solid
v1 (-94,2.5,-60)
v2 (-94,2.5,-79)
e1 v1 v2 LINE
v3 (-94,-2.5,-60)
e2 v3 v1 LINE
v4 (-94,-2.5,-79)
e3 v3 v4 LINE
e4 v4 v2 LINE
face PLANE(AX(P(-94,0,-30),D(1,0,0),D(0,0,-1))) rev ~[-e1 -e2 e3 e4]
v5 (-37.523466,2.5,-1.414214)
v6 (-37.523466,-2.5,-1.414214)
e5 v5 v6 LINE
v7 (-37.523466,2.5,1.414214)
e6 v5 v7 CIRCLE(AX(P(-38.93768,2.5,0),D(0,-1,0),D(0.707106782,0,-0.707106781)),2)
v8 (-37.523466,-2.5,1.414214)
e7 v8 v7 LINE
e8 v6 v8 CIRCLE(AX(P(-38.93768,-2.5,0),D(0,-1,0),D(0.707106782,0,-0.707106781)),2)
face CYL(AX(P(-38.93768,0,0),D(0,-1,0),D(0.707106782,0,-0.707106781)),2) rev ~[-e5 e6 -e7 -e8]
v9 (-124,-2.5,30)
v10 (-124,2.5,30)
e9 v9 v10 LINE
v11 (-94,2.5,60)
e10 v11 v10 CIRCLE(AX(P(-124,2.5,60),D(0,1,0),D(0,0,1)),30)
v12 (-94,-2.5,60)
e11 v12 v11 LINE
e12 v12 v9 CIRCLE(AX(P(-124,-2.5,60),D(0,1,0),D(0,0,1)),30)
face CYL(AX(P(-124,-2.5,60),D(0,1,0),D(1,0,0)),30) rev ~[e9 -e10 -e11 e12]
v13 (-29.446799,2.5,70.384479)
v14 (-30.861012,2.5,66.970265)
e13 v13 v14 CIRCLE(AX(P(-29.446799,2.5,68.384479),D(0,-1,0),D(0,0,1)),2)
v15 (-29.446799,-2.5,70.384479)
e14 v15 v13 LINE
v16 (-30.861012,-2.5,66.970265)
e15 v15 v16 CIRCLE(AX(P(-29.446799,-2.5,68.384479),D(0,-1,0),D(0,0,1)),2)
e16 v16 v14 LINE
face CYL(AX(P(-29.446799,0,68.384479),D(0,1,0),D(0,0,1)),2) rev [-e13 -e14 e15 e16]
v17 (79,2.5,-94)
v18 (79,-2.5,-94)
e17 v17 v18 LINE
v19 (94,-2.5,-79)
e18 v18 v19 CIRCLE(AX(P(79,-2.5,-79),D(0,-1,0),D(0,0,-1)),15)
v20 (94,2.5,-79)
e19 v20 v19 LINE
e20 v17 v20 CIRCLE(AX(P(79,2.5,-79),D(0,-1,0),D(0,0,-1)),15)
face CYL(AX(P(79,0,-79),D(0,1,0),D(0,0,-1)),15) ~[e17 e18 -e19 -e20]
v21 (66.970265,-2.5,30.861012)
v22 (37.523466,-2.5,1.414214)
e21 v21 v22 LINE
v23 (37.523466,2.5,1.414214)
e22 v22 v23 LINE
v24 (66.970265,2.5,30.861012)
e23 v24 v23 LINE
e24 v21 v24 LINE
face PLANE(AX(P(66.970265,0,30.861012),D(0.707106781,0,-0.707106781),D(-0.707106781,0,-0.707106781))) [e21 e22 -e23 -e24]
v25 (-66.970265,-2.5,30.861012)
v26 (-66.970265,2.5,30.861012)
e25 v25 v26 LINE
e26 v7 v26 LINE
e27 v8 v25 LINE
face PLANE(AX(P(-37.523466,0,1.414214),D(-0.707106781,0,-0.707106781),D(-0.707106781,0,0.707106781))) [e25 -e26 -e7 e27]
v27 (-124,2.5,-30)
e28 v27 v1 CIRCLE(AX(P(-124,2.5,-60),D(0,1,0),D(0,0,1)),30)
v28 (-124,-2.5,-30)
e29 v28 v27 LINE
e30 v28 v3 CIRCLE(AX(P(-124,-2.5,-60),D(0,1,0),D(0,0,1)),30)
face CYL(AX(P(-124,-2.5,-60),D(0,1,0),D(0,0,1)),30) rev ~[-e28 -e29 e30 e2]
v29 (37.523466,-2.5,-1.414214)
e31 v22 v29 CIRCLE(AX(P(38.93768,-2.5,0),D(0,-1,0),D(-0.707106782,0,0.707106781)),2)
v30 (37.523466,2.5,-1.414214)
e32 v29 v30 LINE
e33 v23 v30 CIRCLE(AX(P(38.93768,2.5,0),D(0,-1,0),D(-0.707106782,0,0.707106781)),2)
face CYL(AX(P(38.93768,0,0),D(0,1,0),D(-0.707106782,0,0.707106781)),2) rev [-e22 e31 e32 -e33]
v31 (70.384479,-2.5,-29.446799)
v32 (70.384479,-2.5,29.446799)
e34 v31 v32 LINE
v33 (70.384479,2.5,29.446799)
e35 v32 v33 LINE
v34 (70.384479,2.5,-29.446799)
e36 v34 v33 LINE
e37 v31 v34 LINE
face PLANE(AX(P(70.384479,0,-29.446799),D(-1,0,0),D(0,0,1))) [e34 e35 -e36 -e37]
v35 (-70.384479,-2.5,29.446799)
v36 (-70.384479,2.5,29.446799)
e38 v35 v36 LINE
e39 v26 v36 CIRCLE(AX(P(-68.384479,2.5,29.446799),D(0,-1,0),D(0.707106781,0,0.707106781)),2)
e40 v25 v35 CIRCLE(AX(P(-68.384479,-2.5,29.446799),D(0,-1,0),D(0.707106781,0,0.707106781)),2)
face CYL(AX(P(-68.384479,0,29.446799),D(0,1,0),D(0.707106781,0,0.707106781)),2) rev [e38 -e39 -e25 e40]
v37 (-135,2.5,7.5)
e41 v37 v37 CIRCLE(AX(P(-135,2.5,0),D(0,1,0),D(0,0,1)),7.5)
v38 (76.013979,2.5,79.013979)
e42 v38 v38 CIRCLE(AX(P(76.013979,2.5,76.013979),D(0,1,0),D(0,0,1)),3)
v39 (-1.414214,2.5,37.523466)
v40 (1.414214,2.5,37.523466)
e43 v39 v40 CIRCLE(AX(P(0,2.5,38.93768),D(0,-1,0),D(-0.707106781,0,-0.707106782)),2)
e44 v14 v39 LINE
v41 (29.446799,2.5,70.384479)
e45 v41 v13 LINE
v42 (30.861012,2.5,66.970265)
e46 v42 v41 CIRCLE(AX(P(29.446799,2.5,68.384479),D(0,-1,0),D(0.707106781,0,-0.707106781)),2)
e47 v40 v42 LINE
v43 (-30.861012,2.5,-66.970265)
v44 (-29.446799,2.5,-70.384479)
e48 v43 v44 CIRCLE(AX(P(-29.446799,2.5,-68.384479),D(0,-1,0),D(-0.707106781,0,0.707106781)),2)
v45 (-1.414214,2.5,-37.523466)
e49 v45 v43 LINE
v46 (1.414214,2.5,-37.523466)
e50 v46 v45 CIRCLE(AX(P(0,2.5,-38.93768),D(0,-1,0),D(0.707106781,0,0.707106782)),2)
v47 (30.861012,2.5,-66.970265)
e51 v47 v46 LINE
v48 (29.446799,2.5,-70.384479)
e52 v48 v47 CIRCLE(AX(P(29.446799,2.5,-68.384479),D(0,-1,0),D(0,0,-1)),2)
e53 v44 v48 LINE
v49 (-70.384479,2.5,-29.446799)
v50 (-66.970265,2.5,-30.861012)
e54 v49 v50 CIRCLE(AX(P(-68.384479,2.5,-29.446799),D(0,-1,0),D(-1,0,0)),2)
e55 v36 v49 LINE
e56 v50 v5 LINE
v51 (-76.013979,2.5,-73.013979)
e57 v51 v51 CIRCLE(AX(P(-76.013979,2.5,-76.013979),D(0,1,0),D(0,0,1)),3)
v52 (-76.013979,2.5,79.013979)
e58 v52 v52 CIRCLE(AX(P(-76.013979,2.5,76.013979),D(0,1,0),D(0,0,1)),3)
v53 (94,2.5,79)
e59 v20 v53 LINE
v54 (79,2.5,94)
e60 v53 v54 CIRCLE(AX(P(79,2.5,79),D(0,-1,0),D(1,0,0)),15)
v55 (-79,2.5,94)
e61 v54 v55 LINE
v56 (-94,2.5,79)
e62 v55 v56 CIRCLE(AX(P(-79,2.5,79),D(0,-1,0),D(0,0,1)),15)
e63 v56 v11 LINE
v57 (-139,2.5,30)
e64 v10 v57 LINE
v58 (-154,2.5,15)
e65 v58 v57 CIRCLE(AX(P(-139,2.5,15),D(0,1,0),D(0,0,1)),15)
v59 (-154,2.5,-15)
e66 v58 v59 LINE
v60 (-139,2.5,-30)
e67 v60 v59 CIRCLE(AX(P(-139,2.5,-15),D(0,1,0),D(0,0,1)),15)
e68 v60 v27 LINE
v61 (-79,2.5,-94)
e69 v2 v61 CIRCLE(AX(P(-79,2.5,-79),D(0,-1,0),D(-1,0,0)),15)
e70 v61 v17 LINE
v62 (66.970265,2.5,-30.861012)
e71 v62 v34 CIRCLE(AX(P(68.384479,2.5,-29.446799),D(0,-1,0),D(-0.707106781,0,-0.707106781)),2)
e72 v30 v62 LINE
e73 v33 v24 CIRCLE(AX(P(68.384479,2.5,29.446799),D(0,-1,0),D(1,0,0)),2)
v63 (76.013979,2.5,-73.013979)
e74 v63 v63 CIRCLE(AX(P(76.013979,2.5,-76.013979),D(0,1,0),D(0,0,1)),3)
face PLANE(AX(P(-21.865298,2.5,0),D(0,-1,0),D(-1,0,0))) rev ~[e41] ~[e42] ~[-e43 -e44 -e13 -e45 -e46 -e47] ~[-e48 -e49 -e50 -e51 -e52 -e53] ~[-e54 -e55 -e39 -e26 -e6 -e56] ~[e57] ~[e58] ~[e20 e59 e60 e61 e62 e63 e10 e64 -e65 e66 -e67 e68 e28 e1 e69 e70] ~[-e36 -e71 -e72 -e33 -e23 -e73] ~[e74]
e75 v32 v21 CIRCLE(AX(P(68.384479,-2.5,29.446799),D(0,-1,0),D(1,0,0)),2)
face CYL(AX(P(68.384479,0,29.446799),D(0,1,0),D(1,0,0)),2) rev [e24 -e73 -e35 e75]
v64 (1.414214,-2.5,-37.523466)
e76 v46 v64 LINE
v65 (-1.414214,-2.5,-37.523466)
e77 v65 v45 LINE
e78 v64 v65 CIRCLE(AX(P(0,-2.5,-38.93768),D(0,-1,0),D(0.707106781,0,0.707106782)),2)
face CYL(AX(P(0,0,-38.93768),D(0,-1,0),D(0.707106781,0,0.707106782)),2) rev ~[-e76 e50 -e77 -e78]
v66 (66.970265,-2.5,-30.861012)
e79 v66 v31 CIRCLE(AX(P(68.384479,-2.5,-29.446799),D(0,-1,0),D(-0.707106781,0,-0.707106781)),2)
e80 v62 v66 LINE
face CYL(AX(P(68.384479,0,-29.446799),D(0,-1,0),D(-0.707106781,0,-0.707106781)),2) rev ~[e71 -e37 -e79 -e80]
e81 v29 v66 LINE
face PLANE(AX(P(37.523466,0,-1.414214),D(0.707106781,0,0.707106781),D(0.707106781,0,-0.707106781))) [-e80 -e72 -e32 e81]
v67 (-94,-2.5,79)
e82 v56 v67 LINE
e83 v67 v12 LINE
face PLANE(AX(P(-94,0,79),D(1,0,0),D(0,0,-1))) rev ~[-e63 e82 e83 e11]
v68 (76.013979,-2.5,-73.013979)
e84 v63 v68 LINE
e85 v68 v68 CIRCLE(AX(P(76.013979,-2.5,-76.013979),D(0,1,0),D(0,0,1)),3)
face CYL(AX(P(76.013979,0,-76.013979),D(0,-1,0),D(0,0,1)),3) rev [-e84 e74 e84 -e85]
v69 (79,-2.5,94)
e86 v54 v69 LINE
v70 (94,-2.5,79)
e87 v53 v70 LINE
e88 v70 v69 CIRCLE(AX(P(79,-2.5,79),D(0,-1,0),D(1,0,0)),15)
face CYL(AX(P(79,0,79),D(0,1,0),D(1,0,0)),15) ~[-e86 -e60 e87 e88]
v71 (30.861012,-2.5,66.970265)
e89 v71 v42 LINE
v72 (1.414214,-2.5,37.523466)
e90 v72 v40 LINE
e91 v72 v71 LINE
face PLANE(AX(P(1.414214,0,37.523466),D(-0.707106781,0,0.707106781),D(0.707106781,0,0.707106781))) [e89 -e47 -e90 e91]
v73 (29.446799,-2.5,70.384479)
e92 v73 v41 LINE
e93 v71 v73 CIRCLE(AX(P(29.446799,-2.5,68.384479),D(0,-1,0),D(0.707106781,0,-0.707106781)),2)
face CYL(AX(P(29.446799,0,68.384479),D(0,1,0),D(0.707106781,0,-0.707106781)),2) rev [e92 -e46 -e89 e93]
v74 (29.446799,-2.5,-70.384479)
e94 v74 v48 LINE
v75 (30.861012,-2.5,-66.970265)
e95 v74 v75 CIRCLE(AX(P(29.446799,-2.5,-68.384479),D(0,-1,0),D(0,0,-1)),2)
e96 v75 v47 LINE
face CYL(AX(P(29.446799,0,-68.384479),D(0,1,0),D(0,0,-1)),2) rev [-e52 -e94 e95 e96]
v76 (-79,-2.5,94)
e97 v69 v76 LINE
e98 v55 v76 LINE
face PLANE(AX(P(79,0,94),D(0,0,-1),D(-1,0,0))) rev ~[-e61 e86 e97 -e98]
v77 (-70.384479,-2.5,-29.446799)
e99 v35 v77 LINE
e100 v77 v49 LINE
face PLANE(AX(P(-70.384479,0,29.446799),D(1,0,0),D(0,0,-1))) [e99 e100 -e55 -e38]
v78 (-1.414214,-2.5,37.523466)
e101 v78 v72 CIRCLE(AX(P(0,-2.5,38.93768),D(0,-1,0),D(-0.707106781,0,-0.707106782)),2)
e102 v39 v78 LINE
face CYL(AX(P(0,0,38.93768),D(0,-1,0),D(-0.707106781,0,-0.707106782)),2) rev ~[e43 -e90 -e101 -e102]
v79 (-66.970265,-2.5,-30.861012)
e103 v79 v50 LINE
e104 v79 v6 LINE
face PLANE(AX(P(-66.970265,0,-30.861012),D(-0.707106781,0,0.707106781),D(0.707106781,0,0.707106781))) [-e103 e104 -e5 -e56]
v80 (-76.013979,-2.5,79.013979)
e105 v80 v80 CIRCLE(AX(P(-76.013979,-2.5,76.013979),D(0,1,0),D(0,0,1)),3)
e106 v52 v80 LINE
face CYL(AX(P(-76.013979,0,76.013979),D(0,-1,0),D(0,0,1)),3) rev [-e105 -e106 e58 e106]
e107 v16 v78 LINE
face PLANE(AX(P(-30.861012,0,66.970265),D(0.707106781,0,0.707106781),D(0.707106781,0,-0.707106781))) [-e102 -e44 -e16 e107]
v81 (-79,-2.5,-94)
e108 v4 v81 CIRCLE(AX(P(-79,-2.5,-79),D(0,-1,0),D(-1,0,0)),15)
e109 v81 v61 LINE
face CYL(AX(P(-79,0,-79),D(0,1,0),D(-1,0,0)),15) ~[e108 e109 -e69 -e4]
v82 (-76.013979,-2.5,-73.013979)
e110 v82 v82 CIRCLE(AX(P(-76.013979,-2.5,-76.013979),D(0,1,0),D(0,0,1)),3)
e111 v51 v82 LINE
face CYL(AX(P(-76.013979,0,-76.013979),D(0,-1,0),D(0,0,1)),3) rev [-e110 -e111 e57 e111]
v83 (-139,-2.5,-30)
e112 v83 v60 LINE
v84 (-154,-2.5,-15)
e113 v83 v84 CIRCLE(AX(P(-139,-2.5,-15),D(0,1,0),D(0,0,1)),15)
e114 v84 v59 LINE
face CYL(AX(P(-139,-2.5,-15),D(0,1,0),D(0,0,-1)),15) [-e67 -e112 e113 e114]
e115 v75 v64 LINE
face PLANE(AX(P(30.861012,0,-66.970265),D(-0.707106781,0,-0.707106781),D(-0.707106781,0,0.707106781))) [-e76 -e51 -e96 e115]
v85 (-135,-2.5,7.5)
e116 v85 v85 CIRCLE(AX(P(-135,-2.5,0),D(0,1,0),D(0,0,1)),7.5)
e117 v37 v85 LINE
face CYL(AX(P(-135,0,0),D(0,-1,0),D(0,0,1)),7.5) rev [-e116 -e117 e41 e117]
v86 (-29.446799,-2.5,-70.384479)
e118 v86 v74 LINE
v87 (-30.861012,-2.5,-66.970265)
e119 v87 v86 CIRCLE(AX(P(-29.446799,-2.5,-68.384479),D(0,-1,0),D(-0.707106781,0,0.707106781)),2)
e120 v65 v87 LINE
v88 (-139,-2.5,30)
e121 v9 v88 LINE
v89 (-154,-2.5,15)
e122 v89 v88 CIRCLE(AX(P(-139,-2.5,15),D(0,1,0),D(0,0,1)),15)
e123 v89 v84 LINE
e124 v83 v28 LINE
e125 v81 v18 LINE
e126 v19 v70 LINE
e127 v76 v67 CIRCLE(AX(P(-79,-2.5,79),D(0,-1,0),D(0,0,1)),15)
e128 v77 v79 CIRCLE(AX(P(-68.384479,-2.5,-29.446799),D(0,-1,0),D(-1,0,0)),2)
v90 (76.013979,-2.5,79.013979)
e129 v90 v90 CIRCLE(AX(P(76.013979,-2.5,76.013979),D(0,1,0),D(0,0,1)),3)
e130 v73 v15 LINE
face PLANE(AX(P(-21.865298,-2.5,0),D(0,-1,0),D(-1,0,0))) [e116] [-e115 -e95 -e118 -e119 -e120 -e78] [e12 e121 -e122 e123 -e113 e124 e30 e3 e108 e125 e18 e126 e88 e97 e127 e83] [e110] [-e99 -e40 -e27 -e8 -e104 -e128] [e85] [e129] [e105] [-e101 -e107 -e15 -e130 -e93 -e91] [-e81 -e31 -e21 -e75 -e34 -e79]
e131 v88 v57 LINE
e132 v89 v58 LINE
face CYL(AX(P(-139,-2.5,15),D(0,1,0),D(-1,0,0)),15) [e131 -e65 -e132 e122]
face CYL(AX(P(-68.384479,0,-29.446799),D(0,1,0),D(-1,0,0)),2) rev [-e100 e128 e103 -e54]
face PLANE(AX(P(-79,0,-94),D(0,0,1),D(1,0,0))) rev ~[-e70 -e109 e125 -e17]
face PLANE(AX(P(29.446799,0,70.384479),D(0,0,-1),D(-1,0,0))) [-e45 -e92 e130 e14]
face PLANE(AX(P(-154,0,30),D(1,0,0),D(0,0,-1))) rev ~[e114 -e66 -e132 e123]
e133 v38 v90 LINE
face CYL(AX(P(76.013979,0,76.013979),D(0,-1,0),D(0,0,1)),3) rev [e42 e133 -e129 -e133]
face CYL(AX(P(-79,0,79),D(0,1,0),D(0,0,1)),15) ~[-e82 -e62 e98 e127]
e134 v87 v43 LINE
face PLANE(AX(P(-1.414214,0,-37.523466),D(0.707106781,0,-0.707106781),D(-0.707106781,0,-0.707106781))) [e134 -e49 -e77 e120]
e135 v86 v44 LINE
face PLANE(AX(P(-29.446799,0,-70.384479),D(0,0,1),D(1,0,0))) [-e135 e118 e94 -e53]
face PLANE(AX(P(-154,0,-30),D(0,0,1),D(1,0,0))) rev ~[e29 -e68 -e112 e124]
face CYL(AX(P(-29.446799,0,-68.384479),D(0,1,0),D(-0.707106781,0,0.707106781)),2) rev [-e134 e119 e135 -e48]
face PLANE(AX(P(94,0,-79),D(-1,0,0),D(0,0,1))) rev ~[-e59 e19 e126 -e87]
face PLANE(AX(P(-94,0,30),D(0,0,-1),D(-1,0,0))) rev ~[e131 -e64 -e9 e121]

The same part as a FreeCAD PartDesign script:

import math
import FreeCAD as App
import Part
import Sketcher
from FreeCAD import Vector
Q = App.Units.Quantity


def edges_at(feature, points):
    """Names of the edges that pass closest to the given points."""
    edges = feature.Shape.Edges
    near = lambda p: min(range(len(edges)), key=lambda i: edges[i].distToShape(Part.Vertex(*p))[0])
    return sorted({f"Edge{near(p) + 1}" for p in points})

doc = App.newDocument("Part")
params = doc.addObject("Spreadsheet::Sheet", "Params")
for row, (alias, value) in enumerate([
    ("sketch1_diameter", "6 mm"),
    ("sketch1_diameter2", "15 mm"),
    ("sketch1_radius", "15 mm"),
    ("sketch1_radius2", "2 mm"),
    ("sketch1_width", "158 mm"),
    ("pad1_length", "5 mm"),
    ("fillet_radius", "30 mm"),
    ("fillet2_radius", "15 mm"),
], start=1):
    params.set(f"A{row}", alias)
    params.set(f"B{row}", "=" + value)
    params.setAlias(f"B{row}", alias)

body = doc.addObject("PartDesign::Body", "Body")

sketch1 = body.newObject("Sketcher::SketchObject", "Sketch")
sketch1.AttachmentSupport = (doc.getObject("XZ_Plane"), [""])
sketch1.MapMode = "FlatFace"
sketch1.addGeometry([
    Part.LineSegment(Vector(79, -94, 0), Vector(-79, -94, 0)),
    Part.ArcOfCircle(Part.Circle(Vector(-79, -79, 0), Vector(0, 0, 1), 15), math.radians(180), math.radians(270)),
    Part.LineSegment(Vector(-94, -79, 0), Vector(-94, -30, 0)),
    Part.LineSegment(Vector(-94, -30, 0), Vector(-154, -30, 0)),
    Part.LineSegment(Vector(-154, -30, 0), Vector(-154, 30, 0)),
    Part.LineSegment(Vector(-154, 30, 0), Vector(-94, 30, 0)),
    Part.LineSegment(Vector(-94, 30, 0), Vector(-94, 79, 0)),
    Part.ArcOfCircle(Part.Circle(Vector(-79, 79, 0), Vector(0, 0, 1), 15), math.radians(90), math.radians(180)),
    Part.LineSegment(Vector(-79, 94, 0), Vector(79, 94, 0)),
    Part.ArcOfCircle(Part.Circle(Vector(79, 79, 0), Vector(0, 0, 1), 15), math.radians(0), math.radians(90)),
    Part.LineSegment(Vector(94, 79, 0), Vector(94, -79, 0)),
    Part.ArcOfCircle(Part.Circle(Vector(79, -79, 0), Vector(0, 0, 1), 15), math.radians(-90), math.radians(0)),
    Part.Circle(Vector(76.013979, 76.013979, 0), Vector(0, 0, 1), 3),
    Part.LineSegment(Vector(29.446799, 70.384479, 0), Vector(-29.446799, 70.384479, 0)),
    Part.ArcOfCircle(Part.Circle(Vector(-29.446799, 68.384479, 0), Vector(0, 0, 1), 2), math.radians(90), math.radians(225)),
    Part.LineSegment(Vector(-30.861012, 66.970265, 0), Vector(-1.414214, 37.523466, 0)),
    Part.ArcOfCircle(Part.Circle(Vector(0, 38.93768, 0), Vector(0, 0, 1), 2), math.radians(-135), math.radians(-45)),
    Part.LineSegment(Vector(1.414214, 37.523466, 0), Vector(30.861012, 66.970265, 0)),
    Part.ArcOfCircle(Part.Circle(Vector(29.446799, 68.384479, 0), Vector(0, 0, 1), 2), math.radians(-45), math.radians(90)),
    Part.Circle(Vector(-76.013979, 76.013979, 0), Vector(0, 0, 1), 3),
    Part.LineSegment(Vector(70.384479, -29.446799, 0), Vector(70.384479, 29.446799, 0)),
    Part.ArcOfCircle(Part.Circle(Vector(68.384479, 29.446799, 0), Vector(0, 0, 1), 2), math.radians(0), math.radians(135)),
    Part.LineSegment(Vector(66.970265, 30.861012, 0), Vector(37.523466, 1.414214, 0)),
    Part.ArcOfCircle(Part.Circle(Vector(38.93768, 0, 0), Vector(0, 0, 1), 2), math.radians(135), math.radians(225)),
    Part.LineSegment(Vector(37.523466, -1.414214, 0), Vector(66.970265, -30.861012, 0)),
    Part.ArcOfCircle(Part.Circle(Vector(68.384479, -29.446799, 0), Vector(0, 0, 1), 2), math.radians(-135), math.radians(0)),
    Part.Circle(Vector(76.013979, -76.013979, 0), Vector(0, 0, 1), 3),
    Part.LineSegment(Vector(-29.446799, -70.384479, 0), Vector(29.446799, -70.384479, 0)),
    Part.ArcOfCircle(Part.Circle(Vector(29.446799, -68.384479, 0), Vector(0, 0, 1), 2), math.radians(-90), math.radians(45)),
    Part.LineSegment(Vector(30.861012, -66.970265, 0), Vector(1.414214, -37.523466, 0)),
    Part.ArcOfCircle(Part.Circle(Vector(0, -38.93768, 0), Vector(0, 0, 1), 2), math.radians(45), math.radians(135)),
    Part.LineSegment(Vector(-1.414214, -37.523466, 0), Vector(-30.861012, -66.970265, 0)),
    Part.ArcOfCircle(Part.Circle(Vector(-29.446799, -68.384479, 0), Vector(0, 0, 1), 2), math.radians(135), math.radians(270)),
    Part.LineSegment(Vector(-70.384479, 29.446799, 0), Vector(-70.384479, -29.446799, 0)),
    Part.ArcOfCircle(Part.Circle(Vector(-68.384479, -29.446799, 0), Vector(0, 0, 1), 2), math.radians(-180), math.radians(-45)),
    Part.LineSegment(Vector(-66.970265, -30.861012, 0), Vector(-37.523466, -1.414214, 0)),
    Part.ArcOfCircle(Part.Circle(Vector(-38.93768, 0, 0), Vector(0, 0, 1), 2), math.radians(-45), math.radians(45)),
    Part.LineSegment(Vector(-37.523466, 1.414214, 0), Vector(-66.970265, 30.861012, 0)),
    Part.ArcOfCircle(Part.Circle(Vector(-68.384479, 29.446799, 0), Vector(0, 0, 1), 2), math.radians(45), math.radians(180)),
    Part.Circle(Vector(-135, 0, 0), Vector(0, 0, 1), 7.5),
    Part.Circle(Vector(-76.013979, -76.013979, 0), Vector(0, 0, 1), 3),
], False)
sketch1.addConstraint([
    Sketcher.Constraint("Tangent", 0, 2, 1, 2),
    Sketcher.Constraint("Tangent", 1, 1, 2, 1),
    Sketcher.Constraint("Coincident", 2, 2, 3, 1),
    Sketcher.Constraint("Coincident", 3, 2, 4, 1),
    Sketcher.Constraint("Coincident", 4, 2, 5, 1),
    Sketcher.Constraint("Coincident", 5, 2, 6, 1),
    Sketcher.Constraint("Tangent", 6, 2, 7, 2),
    Sketcher.Constraint("Tangent", 7, 1, 8, 1),
    Sketcher.Constraint("Tangent", 8, 2, 9, 2),
    Sketcher.Constraint("Tangent", 9, 1, 10, 1),
    Sketcher.Constraint("Tangent", 10, 2, 11, 2),
    Sketcher.Constraint("Tangent", 11, 1, 0, 1),
    Sketcher.Constraint("Tangent", 13, 2, 14, 1),
    Sketcher.Constraint("Tangent", 14, 2, 15, 1),
    Sketcher.Constraint("Tangent", 15, 2, 16, 1),
    Sketcher.Constraint("Tangent", 16, 2, 17, 1),
    Sketcher.Constraint("Tangent", 17, 2, 18, 1),
    Sketcher.Constraint("Tangent", 18, 2, 13, 1),
    Sketcher.Constraint("Tangent", 20, 2, 21, 1),
    Sketcher.Constraint("Tangent", 21, 2, 22, 1),
    Sketcher.Constraint("Tangent", 22, 2, 23, 1),
    Sketcher.Constraint("Tangent", 23, 2, 24, 1),
    Sketcher.Constraint("Tangent", 24, 2, 25, 1),
    Sketcher.Constraint("Tangent", 25, 2, 20, 1),
    Sketcher.Constraint("Tangent", 27, 2, 28, 1),
    Sketcher.Constraint("Tangent", 28, 2, 29, 1),
    Sketcher.Constraint("Tangent", 29, 2, 30, 1),
    Sketcher.Constraint("Tangent", 30, 2, 31, 1),
    Sketcher.Constraint("Tangent", 31, 2, 32, 1),
    Sketcher.Constraint("Tangent", 32, 2, 27, 1),
    Sketcher.Constraint("Tangent", 33, 2, 34, 1),
    Sketcher.Constraint("Tangent", 34, 2, 35, 1),
    Sketcher.Constraint("Tangent", 35, 2, 36, 1),
    Sketcher.Constraint("Tangent", 36, 2, 37, 1),
    Sketcher.Constraint("Tangent", 37, 2, 38, 1),
    Sketcher.Constraint("Tangent", 38, 2, 33, 1),
    Sketcher.Constraint("Horizontal", 0),
    Sketcher.Constraint("Vertical", 2),
    Sketcher.Constraint("Horizontal", 3),
    Sketcher.Constraint("Vertical", 4),
    Sketcher.Constraint("Horizontal", 5),
    Sketcher.Constraint("Vertical", 6),
    Sketcher.Constraint("Horizontal", 8),
    Sketcher.Constraint("Vertical", 10),
    Sketcher.Constraint("Horizontal", 13),
    Sketcher.Constraint("Vertical", 20),
    Sketcher.Constraint("Horizontal", 27),
    Sketcher.Constraint("Vertical", 33),
    Sketcher.Constraint("Equal", 1, 7),
    Sketcher.Constraint("Equal", 7, 9),
    Sketcher.Constraint("Equal", 9, 11),
    Sketcher.Constraint("Equal", 14, 16),
    Sketcher.Constraint("Equal", 16, 18),
    Sketcher.Constraint("Equal", 12, 19),
    Sketcher.Constraint("Equal", 18, 21),
    Sketcher.Constraint("Equal", 21, 23),
    Sketcher.Constraint("Equal", 23, 25),
    Sketcher.Constraint("Equal", 19, 26),
    Sketcher.Constraint("Equal", 25, 28),
    Sketcher.Constraint("Equal", 28, 30),
    Sketcher.Constraint("Equal", 30, 32),
    Sketcher.Constraint("Equal", 32, 34),
    Sketcher.Constraint("Equal", 34, 36),
    Sketcher.Constraint("Equal", 36, 38),
    Sketcher.Constraint("Equal", 26, 40),
    Sketcher.Constraint("Symmetric", 1, 3, 9, 3, -1, 1),
    Sketcher.Constraint("Symmetric", 19, 3, 26, 3, -1, 1),
    Sketcher.Constraint("Symmetric", 14, 3, 28, 3, -1, 1),
    Sketcher.Constraint("Symmetric", 16, 3, 30, 3, -1, 1),
    Sketcher.Constraint("Symmetric", 21, 3, 34, 3, -1, 1),
    Sketcher.Constraint("Symmetric", 23, 3, 36, 3, -1, 1),
    Sketcher.Constraint("Symmetric", 12, 3, 40, 3, -1, 1),
    Sketcher.Constraint("Symmetric", 12, 3, 19, 3, -2),
    Sketcher.Constraint("Symmetric", 15, 2, 16, 2, -2),
    Sketcher.Constraint("Symmetric", 24, 2, 34, 2, -2),
    Sketcher.Constraint("Symmetric", 2, 2, 5, 2, -1),
    Sketcher.Constraint("PointOnObject", 39, 3, -1),
    Sketcher.Constraint("Perpendicular", 15, 17),
    Sketcher.Constraint("Parallel", 17, 22),
    Sketcher.Constraint("Perpendicular", 29, 31),
    Sketcher.Constraint("Perpendicular", 35, 37),
    Sketcher.Constraint("Equal", 5, 4),
    Sketcher.Constraint("Equal", 8, 10),
    Sketcher.Constraint("Equal", 27, 20),
    Sketcher.Constraint("Diameter", 12, Q("6 mm")),
    Sketcher.Constraint("Diameter", 39, Q("15 mm")),
    Sketcher.Constraint("Radius", 1, Q("15 mm")),
    Sketcher.Constraint("Radius", 14, Q("2 mm")),
    Sketcher.Constraint("DistanceX", 0, 2, 0, 1, Q("158 mm")),
    Sketcher.Constraint("DistanceX", 3, 2, 3, 1, Q("60 mm")),
    Sketcher.Constraint("DistanceX", 39, 3, -1, 1, Q("135 mm")),
    Sketcher.Constraint("DistanceX", 14, 3, -1, 1, Q("29.446799 mm")),
    Sketcher.Constraint("DistanceY", 14, 3, 12, 3, Q("7.6295 mm")),
    Sketcher.Constraint("DistanceX", 21, 3, 12, 3, Q("7.6295 mm")),
    Sketcher.Constraint("DistanceX", -1, 1, 12, 3, Q("76.013979 mm")),
    Sketcher.Constraint("DistanceY", -1, 1, 12, 3, Q("76.013979 mm")),
])
sketch1.setExpression("Constraints[84]", "Params.sketch1_diameter")
sketch1.setExpression("Constraints[85]", "Params.sketch1_diameter2")
sketch1.setExpression("Constraints[86]", "Params.sketch1_radius")
sketch1.setExpression("Constraints[87]", "Params.sketch1_radius2")
sketch1.setExpression("Constraints[88]", "Params.sketch1_width")
pad1 = body.newObject("PartDesign::Pad", "Pad")
pad1.Profile = sketch1
pad1.setExpression("Length", "Params.pad1_length")
pad1.Midplane = True
doc.recompute()

fillet = body.newObject("PartDesign::Fillet", "Fillet")
fillet.Base = (pad1, edges_at(pad1, [(-94, 0, 30), (-94, 0, -30)]))
fillet.setExpression("Radius", "Params.fillet_radius")
doc.recompute()

fillet2 = body.newObject("PartDesign::Fillet", "Fillet001")
fillet2.Base = (fillet, edges_at(fillet, [(-154, 0, 30), (-154, 0, -30)]))
fillet2.setExpression("Radius", "Params.fillet2_radius")

doc.recompute()
